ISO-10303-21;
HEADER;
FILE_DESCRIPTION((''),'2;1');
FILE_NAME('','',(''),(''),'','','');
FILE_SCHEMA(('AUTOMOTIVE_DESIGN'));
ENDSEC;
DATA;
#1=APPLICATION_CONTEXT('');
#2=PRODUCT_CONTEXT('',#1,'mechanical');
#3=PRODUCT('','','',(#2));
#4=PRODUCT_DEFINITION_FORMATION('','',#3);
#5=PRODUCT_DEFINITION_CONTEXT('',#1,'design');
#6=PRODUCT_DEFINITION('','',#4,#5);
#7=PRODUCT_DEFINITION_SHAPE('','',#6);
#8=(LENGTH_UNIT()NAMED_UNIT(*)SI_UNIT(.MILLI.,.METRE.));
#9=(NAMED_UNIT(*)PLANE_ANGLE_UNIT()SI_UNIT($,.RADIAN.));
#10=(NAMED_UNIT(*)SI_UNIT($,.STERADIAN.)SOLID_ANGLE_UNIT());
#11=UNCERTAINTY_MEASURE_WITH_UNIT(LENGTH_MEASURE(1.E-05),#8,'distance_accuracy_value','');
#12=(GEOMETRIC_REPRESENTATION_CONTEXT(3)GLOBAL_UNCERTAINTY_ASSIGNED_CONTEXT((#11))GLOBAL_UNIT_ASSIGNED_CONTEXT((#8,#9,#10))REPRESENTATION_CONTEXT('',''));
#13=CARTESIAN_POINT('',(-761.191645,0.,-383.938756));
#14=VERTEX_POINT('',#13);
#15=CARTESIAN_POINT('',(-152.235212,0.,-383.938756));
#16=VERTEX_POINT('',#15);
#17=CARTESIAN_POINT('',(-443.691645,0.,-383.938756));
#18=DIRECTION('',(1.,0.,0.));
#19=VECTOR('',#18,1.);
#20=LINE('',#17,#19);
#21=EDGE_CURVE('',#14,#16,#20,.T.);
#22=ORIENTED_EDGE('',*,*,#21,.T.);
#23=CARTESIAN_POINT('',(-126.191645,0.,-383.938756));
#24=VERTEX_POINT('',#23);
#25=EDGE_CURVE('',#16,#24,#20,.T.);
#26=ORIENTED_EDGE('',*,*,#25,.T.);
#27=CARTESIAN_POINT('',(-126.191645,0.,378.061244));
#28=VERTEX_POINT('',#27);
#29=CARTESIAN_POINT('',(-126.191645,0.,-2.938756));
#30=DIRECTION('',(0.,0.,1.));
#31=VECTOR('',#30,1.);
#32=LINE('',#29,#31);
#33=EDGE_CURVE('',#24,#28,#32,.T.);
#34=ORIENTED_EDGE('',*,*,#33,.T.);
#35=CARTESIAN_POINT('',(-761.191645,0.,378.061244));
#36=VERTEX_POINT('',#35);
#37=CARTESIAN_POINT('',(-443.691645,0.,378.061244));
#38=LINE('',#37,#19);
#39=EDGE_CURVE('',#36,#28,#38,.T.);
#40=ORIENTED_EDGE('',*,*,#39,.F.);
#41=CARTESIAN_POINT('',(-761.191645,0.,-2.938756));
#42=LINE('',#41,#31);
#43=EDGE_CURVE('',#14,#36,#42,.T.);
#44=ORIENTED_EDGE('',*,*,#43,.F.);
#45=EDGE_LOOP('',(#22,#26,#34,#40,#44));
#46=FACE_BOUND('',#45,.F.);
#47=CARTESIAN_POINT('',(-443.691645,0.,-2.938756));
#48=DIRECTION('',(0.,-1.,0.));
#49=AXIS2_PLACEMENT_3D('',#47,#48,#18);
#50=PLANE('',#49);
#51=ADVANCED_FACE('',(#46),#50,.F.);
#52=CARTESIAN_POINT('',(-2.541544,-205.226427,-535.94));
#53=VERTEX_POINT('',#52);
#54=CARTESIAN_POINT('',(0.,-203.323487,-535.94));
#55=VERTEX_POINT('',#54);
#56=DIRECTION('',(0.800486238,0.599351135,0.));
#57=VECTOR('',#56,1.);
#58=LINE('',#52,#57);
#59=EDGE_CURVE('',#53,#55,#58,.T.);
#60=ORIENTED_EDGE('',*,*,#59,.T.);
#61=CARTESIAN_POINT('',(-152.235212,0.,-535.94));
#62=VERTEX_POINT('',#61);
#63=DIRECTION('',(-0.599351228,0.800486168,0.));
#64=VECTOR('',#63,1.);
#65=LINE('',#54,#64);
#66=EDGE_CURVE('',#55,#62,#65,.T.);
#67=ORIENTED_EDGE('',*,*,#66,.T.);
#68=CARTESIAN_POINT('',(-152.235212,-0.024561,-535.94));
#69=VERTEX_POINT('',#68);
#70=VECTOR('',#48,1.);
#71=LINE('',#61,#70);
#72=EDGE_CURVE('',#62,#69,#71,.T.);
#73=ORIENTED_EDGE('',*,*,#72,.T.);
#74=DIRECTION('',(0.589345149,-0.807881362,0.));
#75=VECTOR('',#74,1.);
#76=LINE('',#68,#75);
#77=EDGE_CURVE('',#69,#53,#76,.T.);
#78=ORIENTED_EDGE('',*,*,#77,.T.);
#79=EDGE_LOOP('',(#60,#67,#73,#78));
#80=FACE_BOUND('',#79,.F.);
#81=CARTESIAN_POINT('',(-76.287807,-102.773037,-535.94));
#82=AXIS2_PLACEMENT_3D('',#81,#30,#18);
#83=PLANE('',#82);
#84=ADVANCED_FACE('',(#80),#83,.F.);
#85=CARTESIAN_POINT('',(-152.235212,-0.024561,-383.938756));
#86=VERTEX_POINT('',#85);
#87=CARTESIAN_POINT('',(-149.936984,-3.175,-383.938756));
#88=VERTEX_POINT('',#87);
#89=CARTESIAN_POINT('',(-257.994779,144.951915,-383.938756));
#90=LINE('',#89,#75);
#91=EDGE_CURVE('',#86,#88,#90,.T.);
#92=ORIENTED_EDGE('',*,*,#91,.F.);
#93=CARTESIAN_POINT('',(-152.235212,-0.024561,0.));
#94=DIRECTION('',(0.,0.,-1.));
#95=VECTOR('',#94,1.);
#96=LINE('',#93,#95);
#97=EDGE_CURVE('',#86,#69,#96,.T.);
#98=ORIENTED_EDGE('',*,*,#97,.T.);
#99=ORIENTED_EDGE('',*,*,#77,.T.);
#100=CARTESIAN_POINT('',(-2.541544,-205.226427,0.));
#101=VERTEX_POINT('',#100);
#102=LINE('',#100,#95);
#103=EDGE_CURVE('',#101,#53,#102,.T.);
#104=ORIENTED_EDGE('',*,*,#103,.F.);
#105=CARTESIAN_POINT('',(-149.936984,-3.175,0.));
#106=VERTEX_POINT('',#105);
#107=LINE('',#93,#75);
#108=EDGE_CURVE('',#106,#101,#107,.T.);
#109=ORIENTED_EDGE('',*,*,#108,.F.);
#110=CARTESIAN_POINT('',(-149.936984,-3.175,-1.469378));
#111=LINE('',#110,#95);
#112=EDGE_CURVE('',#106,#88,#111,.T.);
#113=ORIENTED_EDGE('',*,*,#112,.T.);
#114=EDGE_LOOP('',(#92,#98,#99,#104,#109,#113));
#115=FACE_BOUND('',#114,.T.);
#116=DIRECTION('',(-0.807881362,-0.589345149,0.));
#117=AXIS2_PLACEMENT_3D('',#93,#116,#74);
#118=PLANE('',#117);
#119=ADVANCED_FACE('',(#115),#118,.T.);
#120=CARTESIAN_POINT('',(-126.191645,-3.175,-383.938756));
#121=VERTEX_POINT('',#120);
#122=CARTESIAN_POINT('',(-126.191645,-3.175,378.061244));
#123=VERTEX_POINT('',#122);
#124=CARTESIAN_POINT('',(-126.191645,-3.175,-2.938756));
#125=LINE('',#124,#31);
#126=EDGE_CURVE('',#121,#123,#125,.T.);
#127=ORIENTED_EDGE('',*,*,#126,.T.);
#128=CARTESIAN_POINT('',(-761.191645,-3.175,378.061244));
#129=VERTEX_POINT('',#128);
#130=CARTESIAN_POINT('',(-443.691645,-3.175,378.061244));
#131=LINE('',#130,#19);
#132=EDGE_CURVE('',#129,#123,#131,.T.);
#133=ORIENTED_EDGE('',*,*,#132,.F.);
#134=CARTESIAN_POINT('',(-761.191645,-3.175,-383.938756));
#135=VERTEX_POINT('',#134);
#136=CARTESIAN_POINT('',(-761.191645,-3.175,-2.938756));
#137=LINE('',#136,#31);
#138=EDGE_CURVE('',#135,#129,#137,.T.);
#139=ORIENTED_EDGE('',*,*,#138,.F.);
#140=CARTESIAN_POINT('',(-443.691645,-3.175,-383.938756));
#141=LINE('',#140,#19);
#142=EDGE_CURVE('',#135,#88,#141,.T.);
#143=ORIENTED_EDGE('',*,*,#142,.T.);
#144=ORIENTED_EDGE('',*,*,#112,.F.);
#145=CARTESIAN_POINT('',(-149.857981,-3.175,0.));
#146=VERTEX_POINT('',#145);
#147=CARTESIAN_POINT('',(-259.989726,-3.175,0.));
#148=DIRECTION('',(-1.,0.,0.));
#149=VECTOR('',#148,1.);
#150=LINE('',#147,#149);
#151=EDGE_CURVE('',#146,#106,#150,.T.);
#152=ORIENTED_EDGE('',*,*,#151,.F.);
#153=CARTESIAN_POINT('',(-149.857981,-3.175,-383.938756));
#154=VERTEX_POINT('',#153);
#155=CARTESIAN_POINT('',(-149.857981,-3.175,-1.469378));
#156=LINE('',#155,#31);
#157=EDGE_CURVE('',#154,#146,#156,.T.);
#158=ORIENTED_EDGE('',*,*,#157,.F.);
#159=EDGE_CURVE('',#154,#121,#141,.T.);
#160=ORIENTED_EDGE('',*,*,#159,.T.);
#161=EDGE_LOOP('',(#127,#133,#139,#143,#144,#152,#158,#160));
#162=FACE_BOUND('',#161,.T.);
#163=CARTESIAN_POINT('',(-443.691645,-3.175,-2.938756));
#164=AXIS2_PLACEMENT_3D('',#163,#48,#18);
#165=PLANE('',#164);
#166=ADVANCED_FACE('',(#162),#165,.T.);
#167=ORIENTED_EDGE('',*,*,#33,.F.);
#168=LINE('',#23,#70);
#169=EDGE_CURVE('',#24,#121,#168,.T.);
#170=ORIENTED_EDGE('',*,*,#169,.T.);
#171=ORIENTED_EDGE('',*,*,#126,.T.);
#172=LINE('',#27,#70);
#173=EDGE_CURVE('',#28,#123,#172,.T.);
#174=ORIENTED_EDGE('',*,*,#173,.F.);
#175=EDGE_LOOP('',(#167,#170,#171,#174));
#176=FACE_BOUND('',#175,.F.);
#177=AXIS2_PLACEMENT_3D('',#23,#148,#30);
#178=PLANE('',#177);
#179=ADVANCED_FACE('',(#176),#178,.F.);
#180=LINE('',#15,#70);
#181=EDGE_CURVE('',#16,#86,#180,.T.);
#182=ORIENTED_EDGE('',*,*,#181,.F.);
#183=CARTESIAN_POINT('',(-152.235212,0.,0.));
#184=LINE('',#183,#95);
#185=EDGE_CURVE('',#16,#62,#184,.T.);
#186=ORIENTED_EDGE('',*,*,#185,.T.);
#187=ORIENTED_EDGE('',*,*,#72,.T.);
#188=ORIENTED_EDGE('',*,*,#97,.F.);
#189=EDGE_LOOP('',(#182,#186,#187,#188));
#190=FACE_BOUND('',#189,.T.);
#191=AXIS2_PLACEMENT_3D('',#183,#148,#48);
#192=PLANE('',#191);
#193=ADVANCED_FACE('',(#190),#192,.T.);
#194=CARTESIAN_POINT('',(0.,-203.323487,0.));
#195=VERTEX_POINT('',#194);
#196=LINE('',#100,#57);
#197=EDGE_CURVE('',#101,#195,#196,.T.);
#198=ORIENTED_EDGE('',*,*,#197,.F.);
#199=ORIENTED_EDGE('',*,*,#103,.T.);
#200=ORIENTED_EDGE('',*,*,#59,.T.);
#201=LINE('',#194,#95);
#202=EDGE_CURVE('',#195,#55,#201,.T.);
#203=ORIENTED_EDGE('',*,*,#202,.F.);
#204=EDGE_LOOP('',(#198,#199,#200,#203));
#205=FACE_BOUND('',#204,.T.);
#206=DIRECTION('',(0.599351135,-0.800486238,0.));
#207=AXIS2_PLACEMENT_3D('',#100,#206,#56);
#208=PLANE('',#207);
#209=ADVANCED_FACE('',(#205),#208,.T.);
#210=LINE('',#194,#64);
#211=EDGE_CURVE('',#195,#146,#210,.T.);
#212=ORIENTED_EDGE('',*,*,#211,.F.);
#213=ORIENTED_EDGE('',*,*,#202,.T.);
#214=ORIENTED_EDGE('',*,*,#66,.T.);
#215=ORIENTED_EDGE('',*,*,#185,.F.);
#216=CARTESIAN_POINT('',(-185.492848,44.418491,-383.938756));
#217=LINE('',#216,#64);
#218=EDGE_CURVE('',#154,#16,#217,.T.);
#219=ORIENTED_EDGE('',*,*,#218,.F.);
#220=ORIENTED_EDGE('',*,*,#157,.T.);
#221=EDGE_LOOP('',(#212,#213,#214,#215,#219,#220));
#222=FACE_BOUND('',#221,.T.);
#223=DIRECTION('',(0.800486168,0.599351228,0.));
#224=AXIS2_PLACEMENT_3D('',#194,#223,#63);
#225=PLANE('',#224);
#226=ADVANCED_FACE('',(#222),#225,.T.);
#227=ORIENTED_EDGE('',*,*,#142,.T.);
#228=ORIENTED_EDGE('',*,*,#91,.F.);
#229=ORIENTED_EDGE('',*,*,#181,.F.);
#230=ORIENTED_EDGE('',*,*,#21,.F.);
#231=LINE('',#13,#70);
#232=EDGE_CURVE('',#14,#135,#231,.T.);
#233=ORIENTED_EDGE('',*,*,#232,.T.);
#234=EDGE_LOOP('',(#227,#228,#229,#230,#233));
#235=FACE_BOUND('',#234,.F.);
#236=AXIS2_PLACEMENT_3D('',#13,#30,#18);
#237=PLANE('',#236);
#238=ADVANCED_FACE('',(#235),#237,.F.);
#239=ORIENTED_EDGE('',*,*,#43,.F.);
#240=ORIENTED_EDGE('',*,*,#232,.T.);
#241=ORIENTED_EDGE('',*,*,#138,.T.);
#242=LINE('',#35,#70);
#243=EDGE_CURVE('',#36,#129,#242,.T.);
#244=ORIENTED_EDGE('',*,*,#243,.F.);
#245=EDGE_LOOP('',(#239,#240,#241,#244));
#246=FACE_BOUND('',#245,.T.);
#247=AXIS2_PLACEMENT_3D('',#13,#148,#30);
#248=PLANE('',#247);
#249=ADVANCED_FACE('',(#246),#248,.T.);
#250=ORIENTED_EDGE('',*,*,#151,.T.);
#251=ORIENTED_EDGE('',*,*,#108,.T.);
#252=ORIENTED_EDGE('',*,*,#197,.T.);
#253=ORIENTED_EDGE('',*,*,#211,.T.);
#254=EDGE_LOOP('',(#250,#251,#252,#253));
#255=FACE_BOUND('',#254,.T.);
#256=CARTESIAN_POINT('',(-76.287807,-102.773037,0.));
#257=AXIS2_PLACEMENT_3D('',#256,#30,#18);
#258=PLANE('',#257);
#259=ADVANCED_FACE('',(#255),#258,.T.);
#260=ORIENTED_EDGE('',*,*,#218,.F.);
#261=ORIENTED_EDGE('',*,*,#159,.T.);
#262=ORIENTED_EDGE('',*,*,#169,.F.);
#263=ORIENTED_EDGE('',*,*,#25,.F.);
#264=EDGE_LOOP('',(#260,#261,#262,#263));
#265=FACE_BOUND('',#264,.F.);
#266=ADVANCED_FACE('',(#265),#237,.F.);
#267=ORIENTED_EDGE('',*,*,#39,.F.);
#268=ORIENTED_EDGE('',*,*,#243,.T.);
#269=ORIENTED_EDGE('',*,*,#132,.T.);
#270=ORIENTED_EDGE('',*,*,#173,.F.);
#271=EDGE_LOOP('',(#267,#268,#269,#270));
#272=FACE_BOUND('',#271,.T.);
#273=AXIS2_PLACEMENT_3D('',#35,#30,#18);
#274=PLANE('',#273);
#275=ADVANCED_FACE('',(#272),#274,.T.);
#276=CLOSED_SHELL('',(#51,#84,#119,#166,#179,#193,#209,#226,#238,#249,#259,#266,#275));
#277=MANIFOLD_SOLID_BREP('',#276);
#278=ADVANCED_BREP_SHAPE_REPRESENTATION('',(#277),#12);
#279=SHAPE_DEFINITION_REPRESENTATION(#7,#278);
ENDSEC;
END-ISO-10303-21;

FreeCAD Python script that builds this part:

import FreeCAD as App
import Part
import Sketcher
Q = App.Units.Quantity


def add_polygon(sketch, points):
    """Adds a closed chain of lines whose ends are joined by coincident constraints."""
    first, n = sketch.GeometryCount, len(points)
    for a, b in zip(points, points[1:] + points[:1]):
        sketch.addGeometry(Part.LineSegment(App.Vector(*a, 0), App.Vector(*b, 0)), False)
    for i in range(n):
        sketch.addConstraint(Sketcher.Constraint("Coincident", first + i, 2, first + (i + 1) % n, 1))

doc = App.newDocument("Part")
params = doc.addObject("Spreadsheet::Sheet", "Params")
for row, (alias, value) in enumerate([
    ("sketch1_width", "25 in"),
    ("sketch1_height", "30 in"),
    ("pad1_length", "0.125 in"),
    ("sketch2_length", "10 in"),
    ("sketch2_length2", "0.125 in"),
    ("pad2_length", "21.1 in"),
], start=1):
    params.set(f"A{row}", alias)
    params.set(f"B{row}", "=" + value)
    params.setAlias(f"B{row}", alias)

body = doc.addObject("PartDesign::Body", "Body")

sketch1 = body.newObject("Sketcher::SketchObject", "Sketch")
sketch1.AttachmentSupport = (doc.getObject("XZ_Plane"), [""])
sketch1.MapMode = "FlatFace"
add_polygon(sketch1, [(-761, 378), (-761, -384), (-126, -384), (-126, 378)])
sketch1.addConstraint(Sketcher.Constraint("Vertical", 0))
sketch1.addConstraint(Sketcher.Constraint("Horizontal", 1))
sketch1.addConstraint(Sketcher.Constraint("Vertical", 2))
sketch1.addConstraint(Sketcher.Constraint("Horizontal", 3))
sketch1.addConstraint(Sketcher.Constraint("DistanceX", 1, 1, 1, 2, Q("25 in")))
sketch1.addConstraint(Sketcher.Constraint("DistanceY", 0, 2, 0, 1, Q("30 in")))
sketch1.addConstraint(Sketcher.Constraint("DistanceX", 0, 2, -1, 1, 761.191645))
sketch1.addConstraint(Sketcher.Constraint("DistanceY", 0, 2, -1, 1, 383.938756))
sketch1.setExpression("Constraints[8]", "Params.sketch1_width")
sketch1.setExpression("Constraints[9]", "Params.sketch1_height")
pad1 = body.newObject("PartDesign::Pad", "Pad")
pad1.Profile = sketch1
pad1.setExpression("Length", "Params.pad1_length")

sketch2 = body.newObject("Sketcher::SketchObject", "Sketch001")
sketch2.AttachmentSupport = (doc.getObject("XY_Plane"), [""])
sketch2.MapMode = "FlatFace"
add_polygon(sketch2, [(0, -203.323), (-152.235, 0), (-152.235, -0.025), (-2.542, -205.226)])
sketch2.addConstraint(Sketcher.Constraint("Vertical", 1))
sketch2.addConstraint(Sketcher.Constraint("PointOnObject", 0, 2, -1))
sketch2.addConstraint(Sketcher.Constraint("PointOnObject", 3, 2, -2))
sketch2.addConstraint(Sketcher.Constraint("Perpendicular", 0, 3))
sketch2.addConstraint(Sketcher.Constraint("Equal", 0, 2))
sketch2.addConstraint(Sketcher.Constraint("Distance", 0, Q("10 in")))
sketch2.addConstraint(Sketcher.Constraint("Distance", 3, Q("0.125 in")))
sketch2.addConstraint(Sketcher.Constraint("DistanceX", 0, 2, -1, 1, 152.235212))
sketch2.setExpression("Constraints[9]", "Params.sketch2_length")
sketch2.setExpression("Constraints[10]", "Params.sketch2_length2")
pad2 = body.newObject("PartDesign::Pad", "Pad001")
pad2.Profile = sketch2
pad2.setExpression("Length", "Params.pad2_length")
pad2.Reversed = True

doc.recompute()
